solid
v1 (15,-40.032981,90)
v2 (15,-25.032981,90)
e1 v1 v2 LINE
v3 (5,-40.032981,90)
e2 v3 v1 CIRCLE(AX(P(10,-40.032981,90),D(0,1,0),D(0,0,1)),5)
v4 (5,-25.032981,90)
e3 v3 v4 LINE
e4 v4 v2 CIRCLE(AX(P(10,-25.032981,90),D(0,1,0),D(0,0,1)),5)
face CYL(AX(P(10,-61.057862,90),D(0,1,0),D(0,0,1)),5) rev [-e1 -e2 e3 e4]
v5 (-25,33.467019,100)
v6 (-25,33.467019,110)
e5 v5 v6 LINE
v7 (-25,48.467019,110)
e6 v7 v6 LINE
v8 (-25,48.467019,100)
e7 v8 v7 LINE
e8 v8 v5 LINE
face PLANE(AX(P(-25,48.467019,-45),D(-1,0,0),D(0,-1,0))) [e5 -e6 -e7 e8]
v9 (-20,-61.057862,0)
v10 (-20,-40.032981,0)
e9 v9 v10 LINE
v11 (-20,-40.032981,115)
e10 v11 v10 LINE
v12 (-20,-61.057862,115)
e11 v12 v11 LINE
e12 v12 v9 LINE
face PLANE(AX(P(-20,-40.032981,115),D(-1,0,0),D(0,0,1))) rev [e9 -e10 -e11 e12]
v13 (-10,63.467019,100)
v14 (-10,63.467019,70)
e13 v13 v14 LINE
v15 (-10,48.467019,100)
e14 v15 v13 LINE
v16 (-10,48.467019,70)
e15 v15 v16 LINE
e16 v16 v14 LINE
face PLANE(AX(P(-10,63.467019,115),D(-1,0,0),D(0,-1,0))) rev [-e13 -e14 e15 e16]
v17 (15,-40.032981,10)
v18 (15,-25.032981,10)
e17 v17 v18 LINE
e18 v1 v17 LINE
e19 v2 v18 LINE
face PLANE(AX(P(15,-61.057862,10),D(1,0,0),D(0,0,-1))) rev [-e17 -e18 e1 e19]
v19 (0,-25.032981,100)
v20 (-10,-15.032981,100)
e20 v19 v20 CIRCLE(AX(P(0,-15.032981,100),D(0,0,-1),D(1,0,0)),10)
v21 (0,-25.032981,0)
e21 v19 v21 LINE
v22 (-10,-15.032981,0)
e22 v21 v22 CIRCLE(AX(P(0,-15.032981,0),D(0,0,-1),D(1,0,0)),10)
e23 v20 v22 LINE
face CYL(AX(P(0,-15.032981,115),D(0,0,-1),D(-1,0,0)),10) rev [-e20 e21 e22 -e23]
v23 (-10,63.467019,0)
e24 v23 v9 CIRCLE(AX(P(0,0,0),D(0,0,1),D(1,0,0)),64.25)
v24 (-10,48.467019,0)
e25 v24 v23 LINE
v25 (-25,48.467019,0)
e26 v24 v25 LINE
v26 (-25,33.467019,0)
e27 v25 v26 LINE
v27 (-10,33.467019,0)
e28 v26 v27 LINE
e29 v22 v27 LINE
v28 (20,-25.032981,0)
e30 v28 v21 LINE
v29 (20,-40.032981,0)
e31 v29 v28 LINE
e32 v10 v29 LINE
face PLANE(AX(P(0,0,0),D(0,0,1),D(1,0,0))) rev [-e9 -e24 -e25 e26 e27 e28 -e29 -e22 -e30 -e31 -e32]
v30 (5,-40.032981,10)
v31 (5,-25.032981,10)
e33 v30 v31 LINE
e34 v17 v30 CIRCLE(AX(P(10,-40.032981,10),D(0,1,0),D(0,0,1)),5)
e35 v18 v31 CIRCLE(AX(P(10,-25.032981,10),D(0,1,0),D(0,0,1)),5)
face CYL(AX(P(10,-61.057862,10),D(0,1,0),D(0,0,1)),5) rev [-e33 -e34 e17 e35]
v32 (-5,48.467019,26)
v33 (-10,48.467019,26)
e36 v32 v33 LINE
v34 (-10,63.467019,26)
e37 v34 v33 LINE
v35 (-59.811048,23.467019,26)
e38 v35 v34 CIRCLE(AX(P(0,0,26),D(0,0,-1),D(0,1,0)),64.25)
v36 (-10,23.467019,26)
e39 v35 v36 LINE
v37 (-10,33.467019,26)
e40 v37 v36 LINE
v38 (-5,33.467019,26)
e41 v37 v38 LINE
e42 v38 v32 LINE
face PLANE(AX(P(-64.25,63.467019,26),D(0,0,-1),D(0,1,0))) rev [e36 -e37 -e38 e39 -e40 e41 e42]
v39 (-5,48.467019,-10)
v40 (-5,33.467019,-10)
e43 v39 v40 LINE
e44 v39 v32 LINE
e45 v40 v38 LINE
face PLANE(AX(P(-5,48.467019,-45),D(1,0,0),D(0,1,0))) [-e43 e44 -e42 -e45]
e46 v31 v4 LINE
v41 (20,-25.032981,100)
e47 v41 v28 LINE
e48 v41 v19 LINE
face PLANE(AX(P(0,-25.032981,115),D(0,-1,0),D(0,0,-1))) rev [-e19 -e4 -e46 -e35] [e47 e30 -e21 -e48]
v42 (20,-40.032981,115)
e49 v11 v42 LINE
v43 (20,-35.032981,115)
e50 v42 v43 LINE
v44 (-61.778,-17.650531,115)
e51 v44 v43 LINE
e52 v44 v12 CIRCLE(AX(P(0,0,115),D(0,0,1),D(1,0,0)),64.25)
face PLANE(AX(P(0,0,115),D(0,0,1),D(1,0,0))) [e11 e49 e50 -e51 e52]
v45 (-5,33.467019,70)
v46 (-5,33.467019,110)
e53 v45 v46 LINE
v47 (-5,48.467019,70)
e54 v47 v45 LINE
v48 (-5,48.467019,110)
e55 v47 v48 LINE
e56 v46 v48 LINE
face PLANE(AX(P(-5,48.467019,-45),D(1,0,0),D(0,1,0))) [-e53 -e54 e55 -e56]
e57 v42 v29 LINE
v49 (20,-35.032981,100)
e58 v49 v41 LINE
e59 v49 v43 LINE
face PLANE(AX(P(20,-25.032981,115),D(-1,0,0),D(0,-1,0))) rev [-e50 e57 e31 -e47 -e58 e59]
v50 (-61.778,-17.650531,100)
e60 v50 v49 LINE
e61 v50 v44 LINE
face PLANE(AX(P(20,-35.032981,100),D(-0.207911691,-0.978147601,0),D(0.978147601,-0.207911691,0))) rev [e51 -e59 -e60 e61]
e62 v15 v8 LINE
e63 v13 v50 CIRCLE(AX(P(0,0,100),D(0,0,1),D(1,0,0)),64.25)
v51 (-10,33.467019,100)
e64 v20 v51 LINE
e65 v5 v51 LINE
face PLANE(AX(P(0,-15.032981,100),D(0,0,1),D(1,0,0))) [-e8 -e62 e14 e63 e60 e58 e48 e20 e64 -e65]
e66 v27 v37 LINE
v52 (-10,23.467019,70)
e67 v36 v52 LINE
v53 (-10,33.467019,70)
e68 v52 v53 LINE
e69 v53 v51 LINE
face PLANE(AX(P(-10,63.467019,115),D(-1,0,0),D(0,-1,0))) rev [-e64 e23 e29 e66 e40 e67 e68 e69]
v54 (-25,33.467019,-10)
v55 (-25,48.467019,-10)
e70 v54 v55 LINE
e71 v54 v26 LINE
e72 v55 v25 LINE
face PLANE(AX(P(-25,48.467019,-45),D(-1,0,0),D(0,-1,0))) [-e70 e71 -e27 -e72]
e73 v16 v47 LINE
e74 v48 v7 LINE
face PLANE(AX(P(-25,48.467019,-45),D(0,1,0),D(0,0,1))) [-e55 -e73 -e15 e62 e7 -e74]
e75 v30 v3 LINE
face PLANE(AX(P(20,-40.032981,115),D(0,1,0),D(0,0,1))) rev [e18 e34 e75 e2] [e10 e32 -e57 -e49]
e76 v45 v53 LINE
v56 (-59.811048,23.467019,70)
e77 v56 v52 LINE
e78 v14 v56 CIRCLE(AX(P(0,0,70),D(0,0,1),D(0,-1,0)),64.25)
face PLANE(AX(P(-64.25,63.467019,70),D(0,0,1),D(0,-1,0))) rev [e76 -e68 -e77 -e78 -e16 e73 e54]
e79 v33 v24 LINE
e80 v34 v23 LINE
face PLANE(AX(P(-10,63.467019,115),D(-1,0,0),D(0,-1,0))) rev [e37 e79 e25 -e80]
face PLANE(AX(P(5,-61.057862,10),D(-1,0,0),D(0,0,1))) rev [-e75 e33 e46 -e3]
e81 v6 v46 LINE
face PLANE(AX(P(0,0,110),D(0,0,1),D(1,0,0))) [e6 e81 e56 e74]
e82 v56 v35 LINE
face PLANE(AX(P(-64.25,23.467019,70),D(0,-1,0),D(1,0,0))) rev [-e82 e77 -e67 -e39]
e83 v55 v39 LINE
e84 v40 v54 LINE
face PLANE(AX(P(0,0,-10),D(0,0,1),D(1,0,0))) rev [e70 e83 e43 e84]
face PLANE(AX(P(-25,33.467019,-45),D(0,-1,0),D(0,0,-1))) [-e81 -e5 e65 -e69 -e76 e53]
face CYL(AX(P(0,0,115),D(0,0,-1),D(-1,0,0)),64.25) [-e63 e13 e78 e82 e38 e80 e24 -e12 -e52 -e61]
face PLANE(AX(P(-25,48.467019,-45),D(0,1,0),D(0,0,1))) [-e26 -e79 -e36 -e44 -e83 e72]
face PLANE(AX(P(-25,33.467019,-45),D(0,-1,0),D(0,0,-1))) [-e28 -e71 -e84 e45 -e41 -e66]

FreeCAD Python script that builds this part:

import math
import FreeCAD as App
import Part
import Sketcher
Q = App.Units.Quantity

doc = App.newDocument("Part")
params = doc.addObject("Spreadsheet::Sheet", "Params")
for row, (alias, value) in enumerate([
    ("sketch1_radius", "10 mm"),
    ("sketch1_width", "40 mm"),
    ("sketch1_width2", "20 mm"),
    ("sketch1_height", "15 mm"),
    ("sketch1_radius2", "64.25 mm"),
    ("pad1_length", "115 mm"),
    ("sketch2_radius", "10 mm"),
    ("sketch2_width", "20 mm"),
    ("sketch2_height", "10 mm"),
    ("sketch2_radius2", "64.25 mm"),
    ("sketch2_height2", "78.5 mm"),
    ("pocket1_length", "15 mm"),
    ("sketch3_width", "20 mm"),
    ("sketch3_height", "15 mm"),
    ("pad2_length", "120 mm"),
    ("sketch4_width", "40 mm"),
    ("sketch4_height", "44 mm"),
    ("sketch5_radius", "5 mm"),
    ("sketch5_height", "80 mm"),
], start=1):
    params.set(f"A{row}", alias)
    params.set(f"B{row}", "=" + value)
    params.setAlias(f"B{row}", alias)

body = doc.addObject("PartDesign::Body", "Body")

sketch1 = doc.addObject("Sketcher::SketchObject", "Sketch")
body.addObject(sketch1)
sketch1.AttachmentSupport = (doc.XY_Plane, [""])
sketch1.MapMode = "FlatFace"
sketch1.addGeometry([
    Part.LineSegment(App.Vector(-10, -15, 0), App.Vector(-10, 63, 0)),
    Part.ArcOfCircle(Part.Circle(App.Vector(0, 0, 0), App.Vector(0, 0, 1), 64), math.radians(99), math.radians(252)),
    Part.LineSegment(App.Vector(-20, -61, 0), App.Vector(-20, -40, 0)),
    Part.LineSegment(App.Vector(-20, -40, 0), App.Vector(20, -40, 0)),
    Part.LineSegment(App.Vector(20, -40, 0), App.Vector(20, -25, 0)),
    Part.LineSegment(App.Vector(20, -25, 0), App.Vector(0, -25, 0)),
    Part.ArcOfCircle(Part.Circle(App.Vector(0, -15, 0), App.Vector(0, 0, 1), 10), math.radians(180), math.radians(270)),
], False)
sketch1.addConstraint([
    Sketcher.Constraint("Coincident", 0, 2, 1, 1),
    Sketcher.Constraint("Coincident", 1, 2, 2, 1),
    Sketcher.Constraint("Coincident", 2, 2, 3, 1),
    Sketcher.Constraint("Coincident", 3, 2, 4, 1),
    Sketcher.Constraint("Coincident", 4, 2, 5, 1),
    Sketcher.Constraint("Tangent", 5, 2, 6, 2),
    Sketcher.Constraint("Tangent", 6, 1, 0, 1),
    Sketcher.Constraint("Vertical", 0),
    Sketcher.Constraint("Vertical", 2),
    Sketcher.Constraint("Horizontal", 3),
    Sketcher.Constraint("Vertical", 4),
    Sketcher.Constraint("Horizontal", 5),
    Sketcher.Constraint("Coincident", 1, 3, -1, 1),
    Sketcher.Constraint("PointOnObject", 6, 3, -2),
    Sketcher.Constraint("Radius", 6, Q("10 mm")),
    Sketcher.Constraint("DistanceX", 3, 1, 3, 2, Q("40 mm")),
    Sketcher.Constraint("DistanceX", 5, 2, 5, 1, Q("20 mm")),
    Sketcher.Constraint("DistanceY", 4, 1, 4, 2, Q("15 mm")),
    Sketcher.Constraint("Radius", 1, Q("64.25 mm")),
    Sketcher.Constraint("DistanceY", 0, 1, 0, 2, Q("78.5 mm")),
])
sketch1.setExpression("Constraints[14]", "Params.sketch1_radius")
sketch1.setExpression("Constraints[15]", "Params.sketch1_width")
sketch1.setExpression("Constraints[16]", "Params.sketch1_width2")
sketch1.setExpression("Constraints[17]", "Params.sketch1_height")
sketch1.setExpression("Constraints[18]", "Params.sketch1_radius2")
pad1 = doc.addObject("PartDesign::Pad", "Pad")
body.addObject(pad1)
pad1.Profile = sketch1
pad1.setExpression("Length", "Params.pad1_length")

sketch2 = doc.addObject("Sketcher::SketchObject", "Sketch001")
body.addObject(sketch2)
sketch2.AttachmentSupport = (doc.XY_Plane, [""])
sketch2.MapMode = "FlatFace"
sketch2.AttachmentOffset = App.Placement(App.Vector(0, 0, 100), App.Rotation())
sketch2.addGeometry([
    Part.LineSegment(App.Vector(-62, -18, 0), App.Vector(20, -35, 0)),
    Part.LineSegment(App.Vector(20, -35, 0), App.Vector(20, -25, 0)),
    Part.LineSegment(App.Vector(20, -25, 0), App.Vector(0, -25, 0)),
    Part.ArcOfCircle(Part.Circle(App.Vector(0, -15, 0), App.Vector(0, 0, 1), 10), math.radians(180), math.radians(270)),
    Part.LineSegment(App.Vector(-10, -15, 0), App.Vector(-10, 63, 0)),
    Part.ArcOfCircle(Part.Circle(App.Vector(0, 0, 0), App.Vector(0, 0, 1), 64), math.radians(99), math.radians(196)),
], False)
sketch2.addConstraint([
    Sketcher.Constraint("Coincident", 0, 2, 1, 1),
    Sketcher.Constraint("Coincident", 1, 2, 2, 1),
    Sketcher.Constraint("Tangent", 2, 2, 3, 2),
    Sketcher.Constraint("Tangent", 3, 1, 4, 1),
    Sketcher.Constraint("Coincident", 4, 2, 5, 1),
    Sketcher.Constraint("Coincident", 5, 2, 0, 1),
    Sketcher.Constraint("Vertical", 1),
    Sketcher.Constraint("Horizontal", 2),
    Sketcher.Constraint("Vertical", 4),
    Sketcher.Constraint("Coincident", 5, 3, -1, 1),
    Sketcher.Constraint("PointOnObject", 3, 3, -2),
    Sketcher.Constraint("Radius", 3, Q("10 mm")),
    Sketcher.Constraint("DistanceX", 2, 2, 2, 1, Q("20 mm")),
    Sketcher.Constraint("DistanceY", 1, 1, 1, 2, Q("10 mm")),
    Sketcher.Constraint("Angle", 0, Q("-12 deg")),
    Sketcher.Constraint("Radius", 5, Q("64.25 mm")),
    Sketcher.Constraint("DistanceY", 4, 1, 4, 2, Q("78.5 mm")),
])
sketch2.setExpression("Constraints[11]", "Params.sketch2_radius")
sketch2.setExpression("Constraints[12]", "Params.sketch2_width")
sketch2.setExpression("Constraints[13]", "Params.sketch2_height")
sketch2.setExpression("Constraints[15]", "Params.sketch2_radius2")
sketch2.setExpression("Constraints[16]", "Params.sketch2_height2")
pocket1 = doc.addObject("PartDesign::Pocket", "Pocket")
body.addObject(pocket1)
pocket1.Profile = sketch2
pocket1.setExpression("Length", "Params.pocket1_length")
pocket1.Reversed = True

sketch3 = doc.addObject("Sketcher::SketchObject", "Sketch002")
body.addObject(sketch3)
sketch3.AttachmentSupport = (doc.XY_Plane, [""])
sketch3.MapMode = "FlatFace"
sketch3.AttachmentOffset = App.Placement(App.Vector(0, 0, -10), App.Rotation())
sketch3.addGeometry([
    Part.LineSegment(App.Vector(-25, 48, 0), App.Vector(-25, 33, 0)),
    Part.LineSegment(App.Vector(-25, 33, 0), App.Vector(-5, 33, 0)),
    Part.LineSegment(App.Vector(-5, 33, 0), App.Vector(-5, 48, 0)),
    Part.LineSegment(App.Vector(-5, 48, 0), App.Vector(-25, 48, 0)),
], False)
sketch3.addConstraint([
    Sketcher.Constraint("Coincident", 0, 2, 1, 1),
    Sketcher.Constraint("Coincident", 1, 2, 2, 1),
    Sketcher.Constraint("Coincident", 2, 2, 3, 1),
    Sketcher.Constraint("Coincident", 3, 2, 0, 1),
    Sketcher.Constraint("Vertical", 0),
    Sketcher.Constraint("Horizontal", 1),
    Sketcher.Constraint("Vertical", 2),
    Sketcher.Constraint("Horizontal", 3),
    Sketcher.Constraint("DistanceX", 1, 1, 1, 2, Q("20 mm")),
    Sketcher.Constraint("DistanceY", 0, 2, 0, 1, Q("15 mm")),
    Sketcher.Constraint("DistanceX", 0, 2, -1, 1, Q("25 mm")),
    Sketcher.Constraint("DistanceY", -1, 1, 0, 2, Q("33.467019 mm")),
])
sketch3.setExpression("Constraints[8]", "Params.sketch3_width")
sketch3.setExpression("Constraints[9]", "Params.sketch3_height")
pad2 = doc.addObject("PartDesign::Pad", "Pad001")
body.addObject(pad2)
pad2.Profile = sketch3
pad2.setExpression("Length", "Params.pad2_length")

sketch4 = doc.addObject("Sketcher::SketchObject", "Sketch003")
body.addObject(sketch4)
sketch4.AttachmentSupport = (doc.YZ_Plane, [""])
sketch4.MapMode = "FlatFace"
sketch4.AttachmentOffset = App.Placement(App.Vector(0, 0, -5), App.Rotation())
sketch4.addGeometry([
    Part.LineSegment(App.Vector(63, 70, 0), App.Vector(23, 70, 0)),
    Part.LineSegment(App.Vector(23, 70, 0), App.Vector(23, 26, 0)),
    Part.LineSegment(App.Vector(23, 26, 0), App.Vector(63, 26, 0)),
    Part.LineSegment(App.Vector(63, 26, 0), App.Vector(63, 70, 0)),
], False)
sketch4.addConstraint([
    Sketcher.Constraint("Coincident", 0, 2, 1, 1),
    Sketcher.Constraint("Coincident", 1, 2, 2, 1),
    Sketcher.Constraint("Coincident", 2, 2, 3, 1),
    Sketcher.Constraint("Coincident", 3, 2, 0, 1),
    Sketcher.Constraint("Horizontal", 0),
    Sketcher.Constraint("Vertical", 1),
    Sketcher.Constraint("Horizontal", 2),
    Sketcher.Constraint("Vertical", 3),
    Sketcher.Constraint("DistanceX", 0, 2, 0, 1, Q("40 mm")),
    Sketcher.Constraint("DistanceY", 1, 2, 1, 1, Q("44 mm")),
    Sketcher.Constraint("DistanceY", -1, 1, 0, 2, Q("70 mm")),
    Sketcher.Constraint("DistanceX", -1, 1, 0, 2, Q("23.467019 mm")),
])
sketch4.setExpression("Constraints[8]", "Params.sketch4_width")
sketch4.setExpression("Constraints[9]", "Params.sketch4_height")
pocket2 = doc.addObject("PartDesign::Pocket", "Pocket001")
body.addObject(pocket2)
pocket2.Profile = sketch4
pocket2.Type = "ThroughAll"

sketch5 = doc.addObject("Sketcher::SketchObject", "Sketch004")
body.addObject(sketch5)
sketch5.AttachmentSupport = (doc.XZ_Plane, [""])
sketch5.MapMode = "FlatFace"
sketch5.AttachmentOffset = App.Placement(App.Vector(0, 0, 25.032981), App.Rotation())
sketch5.addGeometry([
    Part.LineSegment(App.Vector(15, 90, 0), App.Vector(15, 10, 0)),
    Part.ArcOfCircle(Part.Circle(App.Vector(10, 10, 0), App.Vector(0, 0, 1), 5), math.radians(180), math.radians(360)),
    Part.LineSegment(App.Vector(5, 10, 0), App.Vector(5, 90, 0)),
    Part.ArcOfCircle(Part.Circle(App.Vector(10, 90, 0), App.Vector(0, 0, 1), 5), math.radians(0), math.radians(180)),
], False)
sketch5.addConstraint([
    Sketcher.Constraint("Tangent", 0, 2, 1, 2),
    Sketcher.Constraint("Tangent", 1, 1, 2, 1),
    Sketcher.Constraint("Tangent", 2, 2, 3, 2),
    Sketcher.Constraint("Tangent", 3, 1, 0, 1),
    Sketcher.Constraint("Vertical", 0),
    Sketcher.Constraint("Vertical", 2),
    Sketcher.Constraint("Radius", 1, Q("5 mm")),
    Sketcher.Constraint("DistanceY", 0, 2, 0, 1, Q("80 mm")),
    Sketcher.Constraint("DistanceX", -1, 1, 1, 3, Q("10 mm")),
    Sketcher.Constraint("DistanceY", -1, 1, 1, 3, Q("10 mm")),
])
sketch5.setExpression("Constraints[6]", "Params.sketch5_radius")
sketch5.setExpression("Constraints[7]", "Params.sketch5_height")
pocket3 = doc.addObject("PartDesign::Pocket", "Pocket002")
body.addObject(pocket3)
pocket3.Profile = sketch5
pocket3.Type = "ThroughAll"
pocket3.Reversed = True

doc.recompute()
